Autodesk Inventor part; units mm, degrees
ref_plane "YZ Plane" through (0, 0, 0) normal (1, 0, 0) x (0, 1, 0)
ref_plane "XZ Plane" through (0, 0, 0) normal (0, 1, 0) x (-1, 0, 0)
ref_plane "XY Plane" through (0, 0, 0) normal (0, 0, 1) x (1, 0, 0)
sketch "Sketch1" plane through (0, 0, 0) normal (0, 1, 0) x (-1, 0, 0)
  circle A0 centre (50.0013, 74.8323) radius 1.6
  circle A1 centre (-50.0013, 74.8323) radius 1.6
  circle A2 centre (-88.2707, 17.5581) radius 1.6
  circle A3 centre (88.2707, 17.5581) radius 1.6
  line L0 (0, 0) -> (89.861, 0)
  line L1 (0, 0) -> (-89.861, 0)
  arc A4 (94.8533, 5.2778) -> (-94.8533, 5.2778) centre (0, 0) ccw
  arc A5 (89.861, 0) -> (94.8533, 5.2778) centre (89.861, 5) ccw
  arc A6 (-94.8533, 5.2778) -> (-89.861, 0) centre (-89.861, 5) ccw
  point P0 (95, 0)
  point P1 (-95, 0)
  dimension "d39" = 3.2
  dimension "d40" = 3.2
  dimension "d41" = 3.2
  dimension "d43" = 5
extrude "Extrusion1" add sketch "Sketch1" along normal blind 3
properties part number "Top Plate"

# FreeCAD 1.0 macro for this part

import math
import FreeCAD as App
import Part
import Sketcher
from FreeCAD import Vector
Q = App.Units.Quantity

doc = App.newDocument("Part")
body = doc.addObject("PartDesign::Body", "Body")

sketch1 = doc.addObject("Sketcher::SketchObject", "Sketch")
body.addObject(sketch1)
sketch1.AttachmentSupport = (doc.XZ_Plane, [""])
sketch1.MapMode = "FlatFace"
sketch1.addGeometry([
    Part.LineSegment(Vector(89.9, 0, 0), Vector(-89.9, 0, 0)),
    Part.ArcOfCircle(Part.Circle(Vector(-89.9, 5, 0), Vector(0, 0, 1), 5), math.radians(177), math.radians(270)),
    Part.ArcOfCircle(Part.Circle(Vector(0, 0, 0), Vector(0, 0, 1), 95), math.radians(3), math.radians(177)),
    Part.ArcOfCircle(Part.Circle(Vector(89.9, 5, 0), Vector(0, 0, 1), 5), math.radians(-90), math.radians(3)),
    Part.Circle(Vector(88.3, 17.6, 0), Vector(0, 0, 1), 1.6),
    Part.Circle(Vector(-88.3, 17.6, 0), Vector(0, 0, 1), 1.6),
    Part.Circle(Vector(50, 74.8, 0), Vector(0, 0, 1), 1.6),
    Part.Circle(Vector(-50, 74.8, 0), Vector(0, 0, 1), 1.6),
], False)
sketch1.addConstraint([
    Sketcher.Constraint("Tangent", 0, 2, 1, 2),
    Sketcher.Constraint("Tangent", 1, 1, 2, 2),
    Sketcher.Constraint("Tangent", 2, 1, 3, 2),
    Sketcher.Constraint("Tangent", 3, 1, 0, 1),
    Sketcher.Constraint("Horizontal", 0),
    Sketcher.Constraint("Coincident", 2, 3, -1, 1),
    Sketcher.Constraint("Equal", 1, 3),
    Sketcher.Constraint("Equal", 4, 5),
    Sketcher.Constraint("Equal", 5, 6),
    Sketcher.Constraint("Equal", 6, 7),
    Sketcher.Constraint("Symmetric", 4, 3, 5, 3, -2),
    Sketcher.Constraint("Symmetric", 6, 3, 7, 3, -2),
    Sketcher.Constraint("PointOnObject", 0, 2, -1),
    Sketcher.Constraint("Radius", 1, Q("5 mm")),
    Sketcher.Constraint("Diameter", 4, Q("3.2 mm")),
    Sketcher.Constraint("Radius", 2, Q("95 mm")),
    Sketcher.Constraint("DistanceY", -1, 1, 4, 3, Q("17.558 mm")),
    Sketcher.Constraint("DistanceX", 5, 3, 6, 3, Q("138.272 mm")),
    Sketcher.Constraint("DistanceX", 1, 1, 7, 3, Q("44.852 mm")),
    Sketcher.Constraint("DistanceY", -1, 1, 6, 3, Q("74.8323 mm")),
])
pad1 = doc.addObject("PartDesign::Pad", "Pad")
body.addObject(pad1)
pad1.Profile = sketch1
pad1.Length = 3
pad1.Reversed = True

doc.recompute()
